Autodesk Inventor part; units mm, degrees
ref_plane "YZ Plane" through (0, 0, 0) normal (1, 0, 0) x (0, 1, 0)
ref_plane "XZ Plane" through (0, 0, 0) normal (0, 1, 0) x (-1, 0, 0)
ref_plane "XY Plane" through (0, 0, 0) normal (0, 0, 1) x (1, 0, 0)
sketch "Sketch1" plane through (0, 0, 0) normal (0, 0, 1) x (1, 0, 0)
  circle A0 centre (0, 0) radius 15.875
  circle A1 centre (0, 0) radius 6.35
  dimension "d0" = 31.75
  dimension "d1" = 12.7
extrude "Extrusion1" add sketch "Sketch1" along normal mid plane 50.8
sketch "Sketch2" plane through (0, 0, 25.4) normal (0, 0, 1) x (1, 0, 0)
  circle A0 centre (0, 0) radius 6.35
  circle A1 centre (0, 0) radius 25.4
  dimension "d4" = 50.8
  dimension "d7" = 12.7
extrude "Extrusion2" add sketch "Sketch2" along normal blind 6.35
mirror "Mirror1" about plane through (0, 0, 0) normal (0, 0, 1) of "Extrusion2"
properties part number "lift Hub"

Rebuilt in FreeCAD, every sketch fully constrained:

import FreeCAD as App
import Part
import Sketcher
from FreeCAD import Vector
Q = App.Units.Quantity

doc = App.newDocument("Part")
body = doc.addObject("PartDesign::Body", "Body")

# Sketch on XY plane
sketch1 = body.newObject("Sketcher::SketchObject", "Sketch")
sketch1.AttachmentSupport = (doc.getObject("XY_Plane"), [""])
sketch1.MapMode = "FlatFace"
sketch1.addGeometry([
    Part.Circle(Vector(0, 0, 0), Vector(0, 0, 1), 15.875),
    Part.Circle(Vector(0, 0, 0), Vector(0, 0, 1), 6.35),
], False)
sketch1.addConstraint([
    Sketcher.Constraint("Coincident", 0, 3, -1, 1),
    Sketcher.Constraint("Coincident", 1, 3, -1, 1),
    Sketcher.Constraint("Diameter", 1, Q("0.5 in")),
    Sketcher.Constraint("Diameter", 0, Q("1.25 in")),
])
pad1 = body.newObject("PartDesign::Pad", "Pad")
pad1.Profile = sketch1
pad1.Length = Q("2 in")
pad1.Midplane = True

# Sketch on XY plane
sketch2 = body.newObject("Sketcher::SketchObject", "Sketch001")
sketch2.AttachmentSupport = (doc.getObject("XY_Plane"), [""])
sketch2.MapMode = "FlatFace"
sketch2.AttachmentOffset = App.Placement(Vector(0, 0, 1 * 25.4), App.Rotation())
sketch2.addGeometry([
    Part.Circle(Vector(0, 0, 0), Vector(0, 0, 1), 25.4),
    Part.Circle(Vector(0, 0, 0), Vector(0, 0, 1), 6.35),
], False)
sketch2.addConstraint([
    Sketcher.Constraint("Coincident", 0, 3, -1, 1),
    Sketcher.Constraint("Coincident", 1, 3, -1, 1),
    Sketcher.Constraint("Diameter", 0, Q("2 in")),
    Sketcher.Constraint("Diameter", 1, Q("0.5 in")),
])
pad2 = body.newObject("PartDesign::Pad", "Pad001")
pad2.Profile = sketch2
pad2.Length = Q("0.25 in")
doc.recompute()

mirrored = body.newObject("PartDesign::Mirrored", "Mirrored")
mirrored.Originals = [pad2]
mirrored.MirrorPlane = (doc.getObject("XY_Plane"), [""])
body.Tip = mirrored

doc.recompute()
